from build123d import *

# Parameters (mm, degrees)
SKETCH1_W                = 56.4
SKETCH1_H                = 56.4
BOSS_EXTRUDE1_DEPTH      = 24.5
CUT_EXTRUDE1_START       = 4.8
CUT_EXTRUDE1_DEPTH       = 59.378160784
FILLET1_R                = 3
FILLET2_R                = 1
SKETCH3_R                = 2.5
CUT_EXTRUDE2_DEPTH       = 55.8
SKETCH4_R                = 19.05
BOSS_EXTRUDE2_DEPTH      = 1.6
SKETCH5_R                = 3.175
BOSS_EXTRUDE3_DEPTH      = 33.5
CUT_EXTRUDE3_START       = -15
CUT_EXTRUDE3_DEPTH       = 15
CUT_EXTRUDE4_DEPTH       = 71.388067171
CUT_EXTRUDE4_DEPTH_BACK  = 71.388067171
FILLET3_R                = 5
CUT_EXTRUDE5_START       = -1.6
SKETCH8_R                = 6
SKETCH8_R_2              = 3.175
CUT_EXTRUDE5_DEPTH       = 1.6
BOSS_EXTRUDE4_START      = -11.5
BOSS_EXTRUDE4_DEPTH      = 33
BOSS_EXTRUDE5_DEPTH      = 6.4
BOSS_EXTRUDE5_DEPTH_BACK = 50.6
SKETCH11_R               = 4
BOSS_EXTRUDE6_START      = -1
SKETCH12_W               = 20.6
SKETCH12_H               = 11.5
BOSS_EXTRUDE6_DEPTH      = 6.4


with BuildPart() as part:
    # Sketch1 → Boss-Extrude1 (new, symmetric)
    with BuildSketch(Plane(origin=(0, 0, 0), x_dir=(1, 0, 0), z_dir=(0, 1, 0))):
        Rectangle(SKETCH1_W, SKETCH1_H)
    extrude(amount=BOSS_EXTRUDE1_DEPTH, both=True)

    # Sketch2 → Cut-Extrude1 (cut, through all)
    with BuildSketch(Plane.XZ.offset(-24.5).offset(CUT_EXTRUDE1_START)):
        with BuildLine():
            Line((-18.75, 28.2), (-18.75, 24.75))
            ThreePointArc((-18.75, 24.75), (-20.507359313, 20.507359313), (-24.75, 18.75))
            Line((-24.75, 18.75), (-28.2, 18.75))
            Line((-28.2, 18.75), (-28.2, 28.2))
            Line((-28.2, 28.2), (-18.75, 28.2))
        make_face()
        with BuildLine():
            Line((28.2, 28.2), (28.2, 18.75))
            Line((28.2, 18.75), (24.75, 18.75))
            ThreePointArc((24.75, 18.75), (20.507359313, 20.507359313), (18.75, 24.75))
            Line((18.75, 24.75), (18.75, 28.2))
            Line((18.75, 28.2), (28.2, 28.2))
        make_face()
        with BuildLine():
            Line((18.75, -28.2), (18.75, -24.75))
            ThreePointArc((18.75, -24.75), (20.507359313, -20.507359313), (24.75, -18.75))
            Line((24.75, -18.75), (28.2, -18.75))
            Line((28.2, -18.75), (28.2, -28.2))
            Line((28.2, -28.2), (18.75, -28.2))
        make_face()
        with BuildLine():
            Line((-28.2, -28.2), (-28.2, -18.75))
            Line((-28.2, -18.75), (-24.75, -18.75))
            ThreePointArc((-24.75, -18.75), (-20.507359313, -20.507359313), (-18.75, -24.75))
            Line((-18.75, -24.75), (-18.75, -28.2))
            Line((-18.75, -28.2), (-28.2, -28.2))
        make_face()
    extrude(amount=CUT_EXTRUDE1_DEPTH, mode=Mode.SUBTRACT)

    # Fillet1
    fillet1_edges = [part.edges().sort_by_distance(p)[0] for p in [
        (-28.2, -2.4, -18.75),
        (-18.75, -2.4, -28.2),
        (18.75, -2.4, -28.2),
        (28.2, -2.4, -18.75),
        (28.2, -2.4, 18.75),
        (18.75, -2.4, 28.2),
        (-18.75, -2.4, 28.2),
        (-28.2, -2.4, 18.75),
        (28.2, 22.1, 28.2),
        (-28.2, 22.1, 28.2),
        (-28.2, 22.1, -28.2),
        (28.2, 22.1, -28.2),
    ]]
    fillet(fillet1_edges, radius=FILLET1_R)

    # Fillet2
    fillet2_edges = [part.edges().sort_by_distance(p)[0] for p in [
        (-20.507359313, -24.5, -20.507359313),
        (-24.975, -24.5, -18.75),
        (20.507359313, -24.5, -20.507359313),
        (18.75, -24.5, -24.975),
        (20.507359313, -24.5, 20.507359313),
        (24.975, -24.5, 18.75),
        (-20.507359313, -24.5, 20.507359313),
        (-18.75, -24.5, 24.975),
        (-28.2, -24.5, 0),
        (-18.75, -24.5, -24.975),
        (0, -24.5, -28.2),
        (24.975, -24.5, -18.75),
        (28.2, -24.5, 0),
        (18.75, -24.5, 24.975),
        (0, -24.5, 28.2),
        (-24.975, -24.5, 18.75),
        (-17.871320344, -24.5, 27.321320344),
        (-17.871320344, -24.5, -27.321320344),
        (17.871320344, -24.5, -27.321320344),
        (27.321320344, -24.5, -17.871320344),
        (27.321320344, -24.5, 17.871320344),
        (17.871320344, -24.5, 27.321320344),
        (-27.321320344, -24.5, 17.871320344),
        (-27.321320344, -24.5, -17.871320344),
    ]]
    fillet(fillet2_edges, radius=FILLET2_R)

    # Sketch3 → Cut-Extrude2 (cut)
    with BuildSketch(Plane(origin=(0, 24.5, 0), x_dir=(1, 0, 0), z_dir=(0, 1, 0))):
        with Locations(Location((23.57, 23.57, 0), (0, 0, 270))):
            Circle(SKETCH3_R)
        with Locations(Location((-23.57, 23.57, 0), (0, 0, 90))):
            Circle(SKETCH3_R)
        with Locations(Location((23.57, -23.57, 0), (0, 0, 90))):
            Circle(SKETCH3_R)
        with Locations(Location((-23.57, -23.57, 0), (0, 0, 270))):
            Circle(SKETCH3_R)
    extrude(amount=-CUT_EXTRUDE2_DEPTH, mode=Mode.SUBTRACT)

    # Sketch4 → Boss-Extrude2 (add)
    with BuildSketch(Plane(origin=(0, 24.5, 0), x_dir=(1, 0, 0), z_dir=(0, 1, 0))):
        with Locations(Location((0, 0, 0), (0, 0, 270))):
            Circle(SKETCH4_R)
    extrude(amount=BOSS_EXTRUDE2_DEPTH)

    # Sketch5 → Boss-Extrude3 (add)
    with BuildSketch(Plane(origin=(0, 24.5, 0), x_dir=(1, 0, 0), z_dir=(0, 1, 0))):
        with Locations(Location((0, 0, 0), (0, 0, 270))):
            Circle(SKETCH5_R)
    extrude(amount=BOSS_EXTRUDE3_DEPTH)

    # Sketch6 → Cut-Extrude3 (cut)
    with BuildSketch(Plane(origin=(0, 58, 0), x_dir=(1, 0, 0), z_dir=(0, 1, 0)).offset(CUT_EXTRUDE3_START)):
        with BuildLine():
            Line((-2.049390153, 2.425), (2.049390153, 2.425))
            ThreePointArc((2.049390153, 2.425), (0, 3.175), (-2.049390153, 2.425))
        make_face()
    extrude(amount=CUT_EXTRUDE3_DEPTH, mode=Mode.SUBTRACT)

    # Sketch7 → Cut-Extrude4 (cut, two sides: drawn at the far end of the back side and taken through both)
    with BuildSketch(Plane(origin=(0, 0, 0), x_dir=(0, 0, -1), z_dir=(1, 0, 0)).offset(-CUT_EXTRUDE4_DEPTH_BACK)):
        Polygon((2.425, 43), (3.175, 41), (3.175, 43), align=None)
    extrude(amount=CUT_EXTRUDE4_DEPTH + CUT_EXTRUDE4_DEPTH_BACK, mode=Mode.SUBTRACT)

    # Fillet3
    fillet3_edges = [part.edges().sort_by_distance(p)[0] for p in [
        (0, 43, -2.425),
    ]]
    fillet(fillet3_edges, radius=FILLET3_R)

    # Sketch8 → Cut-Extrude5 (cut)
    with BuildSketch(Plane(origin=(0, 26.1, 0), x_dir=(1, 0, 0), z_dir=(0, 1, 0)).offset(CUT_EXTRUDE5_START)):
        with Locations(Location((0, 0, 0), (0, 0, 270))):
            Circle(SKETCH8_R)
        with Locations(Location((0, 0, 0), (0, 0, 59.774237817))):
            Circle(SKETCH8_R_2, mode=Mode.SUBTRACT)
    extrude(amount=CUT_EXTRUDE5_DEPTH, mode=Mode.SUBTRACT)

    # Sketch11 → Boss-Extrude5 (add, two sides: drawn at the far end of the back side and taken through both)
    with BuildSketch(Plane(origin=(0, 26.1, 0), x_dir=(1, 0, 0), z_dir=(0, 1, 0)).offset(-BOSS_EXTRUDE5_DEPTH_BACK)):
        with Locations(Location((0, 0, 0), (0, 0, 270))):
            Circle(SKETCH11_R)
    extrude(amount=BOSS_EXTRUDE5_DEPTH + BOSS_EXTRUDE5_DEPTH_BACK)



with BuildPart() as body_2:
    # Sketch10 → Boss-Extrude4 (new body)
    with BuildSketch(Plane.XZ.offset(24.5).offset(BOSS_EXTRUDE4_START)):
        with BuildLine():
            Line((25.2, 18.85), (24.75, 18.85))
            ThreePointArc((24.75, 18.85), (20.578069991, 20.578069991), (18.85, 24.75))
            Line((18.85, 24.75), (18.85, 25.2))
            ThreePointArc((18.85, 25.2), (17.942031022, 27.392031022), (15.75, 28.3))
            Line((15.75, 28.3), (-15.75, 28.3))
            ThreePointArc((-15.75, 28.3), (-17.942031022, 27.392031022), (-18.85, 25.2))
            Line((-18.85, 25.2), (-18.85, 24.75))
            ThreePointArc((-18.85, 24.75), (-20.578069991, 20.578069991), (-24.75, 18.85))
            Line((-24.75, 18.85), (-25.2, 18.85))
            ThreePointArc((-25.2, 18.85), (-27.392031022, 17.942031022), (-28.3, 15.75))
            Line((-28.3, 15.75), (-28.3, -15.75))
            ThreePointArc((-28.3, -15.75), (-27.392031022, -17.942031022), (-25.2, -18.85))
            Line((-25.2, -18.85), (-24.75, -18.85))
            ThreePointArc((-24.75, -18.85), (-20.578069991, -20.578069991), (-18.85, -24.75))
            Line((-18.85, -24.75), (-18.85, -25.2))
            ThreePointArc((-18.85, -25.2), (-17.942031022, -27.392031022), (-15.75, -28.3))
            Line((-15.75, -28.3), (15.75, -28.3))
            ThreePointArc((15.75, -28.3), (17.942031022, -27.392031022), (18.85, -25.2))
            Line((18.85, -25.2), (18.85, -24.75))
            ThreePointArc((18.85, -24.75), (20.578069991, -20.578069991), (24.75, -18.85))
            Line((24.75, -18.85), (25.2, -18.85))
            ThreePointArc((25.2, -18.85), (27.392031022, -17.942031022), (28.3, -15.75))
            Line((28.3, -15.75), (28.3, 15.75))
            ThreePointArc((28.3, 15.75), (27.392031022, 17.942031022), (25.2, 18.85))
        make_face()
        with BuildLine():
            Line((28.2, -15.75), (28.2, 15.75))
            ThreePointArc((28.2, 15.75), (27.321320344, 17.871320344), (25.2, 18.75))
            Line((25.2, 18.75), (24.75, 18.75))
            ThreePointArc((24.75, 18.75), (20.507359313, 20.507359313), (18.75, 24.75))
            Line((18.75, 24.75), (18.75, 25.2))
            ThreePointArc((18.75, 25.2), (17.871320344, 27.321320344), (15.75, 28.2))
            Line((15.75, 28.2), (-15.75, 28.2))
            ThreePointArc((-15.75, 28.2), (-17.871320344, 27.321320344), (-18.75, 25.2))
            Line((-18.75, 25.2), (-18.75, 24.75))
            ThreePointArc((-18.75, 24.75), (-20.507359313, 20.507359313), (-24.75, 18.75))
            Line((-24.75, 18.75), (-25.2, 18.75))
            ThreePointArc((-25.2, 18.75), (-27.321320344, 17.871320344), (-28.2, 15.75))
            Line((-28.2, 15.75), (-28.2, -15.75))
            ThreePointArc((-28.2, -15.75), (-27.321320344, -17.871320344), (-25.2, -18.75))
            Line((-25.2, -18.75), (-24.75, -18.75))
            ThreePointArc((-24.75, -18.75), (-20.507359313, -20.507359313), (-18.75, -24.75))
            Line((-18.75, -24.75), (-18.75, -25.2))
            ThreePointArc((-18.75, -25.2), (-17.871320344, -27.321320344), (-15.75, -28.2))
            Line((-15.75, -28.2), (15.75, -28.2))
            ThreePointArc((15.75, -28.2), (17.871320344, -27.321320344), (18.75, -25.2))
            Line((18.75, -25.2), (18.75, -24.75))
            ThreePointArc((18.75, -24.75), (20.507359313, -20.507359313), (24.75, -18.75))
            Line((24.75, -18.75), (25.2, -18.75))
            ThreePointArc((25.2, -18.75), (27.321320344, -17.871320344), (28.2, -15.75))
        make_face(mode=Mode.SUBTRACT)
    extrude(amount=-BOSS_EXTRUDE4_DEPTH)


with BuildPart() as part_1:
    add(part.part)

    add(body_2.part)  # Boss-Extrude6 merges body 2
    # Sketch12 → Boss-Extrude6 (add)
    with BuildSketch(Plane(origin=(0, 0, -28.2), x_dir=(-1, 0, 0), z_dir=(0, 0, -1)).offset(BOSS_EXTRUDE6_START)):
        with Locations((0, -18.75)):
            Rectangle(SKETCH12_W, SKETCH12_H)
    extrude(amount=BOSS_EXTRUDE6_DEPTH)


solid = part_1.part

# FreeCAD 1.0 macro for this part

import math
import FreeCAD as App
import Part
import Sketcher


def edges_at(feature, points):
    """Names of the edges that pass closest to the given points."""
    edges = feature.Shape.Edges
    near = lambda p: min(range(len(edges)), key=lambda i: edges[i].distToShape(Part.Vertex(*p))[0])
    return sorted({f"Edge{near(p) + 1}" for p in points})

doc = App.newDocument("Part")
body = doc.addObject("PartDesign::Body", "Body")

sketch1 = doc.addObject("Sketcher::SketchObject", "Sketch")
body.addObject(sketch1)
sketch1.AttachmentSupport = (doc.XZ_Plane, [""])
sketch1.MapMode = "FlatFace"
sketch1.addGeometry([
    Part.LineSegment(App.Vector(-28, -28, 0), App.Vector(-28, 28, 0)),
    Part.LineSegment(App.Vector(-28, 28, 0), App.Vector(28, 28, 0)),
    Part.LineSegment(App.Vector(28, 28, 0), App.Vector(28, -28, 0)),
    Part.LineSegment(App.Vector(28, -28, 0), App.Vector(-28, -28, 0)),
], False)
sketch1.addConstraint([
    Sketcher.Constraint("Coincident", 0, 2, 1, 1),
    Sketcher.Constraint("Coincident", 1, 2, 2, 1),
    Sketcher.Constraint("Coincident", 2, 2, 3, 1),
    Sketcher.Constraint("Coincident", 3, 2, 0, 1),
    Sketcher.Constraint("Vertical", 0),
    Sketcher.Constraint("Horizontal", 1),
    Sketcher.Constraint("Vertical", 2),
    Sketcher.Constraint("Horizontal", 3),
    Sketcher.Constraint("Symmetric", 0, 2, 2, 2, -1, 1),
    Sketcher.Constraint("Equal", 3, 0),
    Sketcher.Constraint("DistanceX", 1, 1, 1, 2, 56.4),
])
pad1 = doc.addObject("PartDesign::Pad", "Pad")
body.addObject(pad1)
pad1.Profile = sketch1
pad1.Length = 49
pad1.Midplane = True

sketch2 = doc.addObject("Sketcher::SketchObject", "Sketch001")
body.addObject(sketch2)
sketch2.AttachmentSupport = (doc.XZ_Plane, [""])
sketch2.MapMode = "FlatFace"
sketch2.AttachmentOffset = App.Placement(App.Vector(0, 0, -19.7), App.Rotation())
sketch2.addGeometry([
    Part.LineSegment(App.Vector(-18.8, 24.8, 0), App.Vector(-18.8, 28.2, 0)),
    Part.LineSegment(App.Vector(-18.8, 28.2, 0), App.Vector(-28.2, 28.2, 0)),
    Part.LineSegment(App.Vector(-28.2, 28.2, 0), App.Vector(-28.2, 18.8, 0)),
    Part.LineSegment(App.Vector(-28.2, 18.8, 0), App.Vector(-24.8, 18.8, 0)),
    Part.ArcOfCircle(Part.Circle(App.Vector(-24.8, 24.8, 0), App.Vector(0, 0, 1), 6), math.radians(-90), math.radians(0)),
    Part.LineSegment(App.Vector(28.2, 18.8, 0), App.Vector(28.2, 28.2, 0)),
    Part.LineSegment(App.Vector(28.2, 28.2, 0), App.Vector(18.8, 28.2, 0)),
    Part.LineSegment(App.Vector(18.8, 28.2, 0), App.Vector(18.8, 24.8, 0)),
    Part.ArcOfCircle(Part.Circle(App.Vector(24.8, 24.8, 0), App.Vector(0, 0, 1), 6), math.radians(180), math.radians(270)),
    Part.LineSegment(App.Vector(24.8, 18.8, 0), App.Vector(28.2, 18.8, 0)),
    Part.LineSegment(App.Vector(18.8, -24.8, 0), App.Vector(18.8, -28.2, 0)),
    Part.LineSegment(App.Vector(18.8, -28.2, 0), App.Vector(28.2, -28.2, 0)),
    Part.LineSegment(App.Vector(28.2, -28.2, 0), App.Vector(28.2, -18.8, 0)),
    Part.LineSegment(App.Vector(28.2, -18.8, 0), App.Vector(24.8, -18.8, 0)),
    Part.ArcOfCircle(Part.Circle(App.Vector(24.8, -24.8, 0), App.Vector(0, 0, 1), 6), math.radians(90), math.radians(180)),
    Part.LineSegment(App.Vector(-28.2, -18.8, 0), App.Vector(-28.2, -28.2, 0)),
    Part.LineSegment(App.Vector(-28.2, -28.2, 0), App.Vector(-18.8, -28.2, 0)),
    Part.LineSegment(App.Vector(-18.8, -28.2, 0), App.Vector(-18.8, -24.8, 0)),
    Part.ArcOfCircle(Part.Circle(App.Vector(-24.8, -24.8, 0), App.Vector(0, 0, 1), 6), math.radians(0), math.radians(90)),
    Part.LineSegment(App.Vector(-24.8, -18.8, 0), App.Vector(-28.2, -18.8, 0)),
], False)
sketch2.addConstraint([
    Sketcher.Constraint("Coincident", 0, 2, 1, 1),
    Sketcher.Constraint("Coincident", 1, 2, 2, 1),
    Sketcher.Constraint("Coincident", 2, 2, 3, 1),
    Sketcher.Constraint("Tangent", 3, 2, 4, 1),
    Sketcher.Constraint("Tangent", 4, 2, 0, 1),
    Sketcher.Constraint("Coincident", 5, 2, 6, 1),
    Sketcher.Constraint("Coincident", 6, 2, 7, 1),
    Sketcher.Constraint("Tangent", 7, 2, 8, 1),
    Sketcher.Constraint("Tangent", 8, 2, 9, 1),
    Sketcher.Constraint("Coincident", 9, 2, 5, 1),
    Sketcher.Constraint("Coincident", 10, 2, 11, 1),
    Sketcher.Constraint("Coincident", 11, 2, 12, 1),
    Sketcher.Constraint("Coincident", 12, 2, 13, 1),
    Sketcher.Constraint("Tangent", 13, 2, 14, 1),
    Sketcher.Constraint("Tangent", 14, 2, 10, 1),
    Sketcher.Constraint("Coincident", 15, 2, 16, 1),
    Sketcher.Constraint("Coincident", 16, 2, 17, 1),
    Sketcher.Constraint("Tangent", 17, 2, 18, 1),
    Sketcher.Constraint("Tangent", 18, 2, 19, 1),
    Sketcher.Constraint("Coincident", 19, 2, 15, 1),
    Sketcher.Constraint("Vertical", 0),
    Sketcher.Constraint("Horizontal", 1),
    Sketcher.Constraint("Vertical", 2),
    Sketcher.Constraint("Horizontal", 3),
    Sketcher.Constraint("Vertical", 5),
    Sketcher.Constraint("Horizontal", 6),
    Sketcher.Constraint("Vertical", 7),
    Sketcher.Constraint("Horizontal", 9),
    Sketcher.Constraint("Vertical", 10),
    Sketcher.Constraint("Horizontal", 11),
    Sketcher.Constraint("Vertical", 12),
    Sketcher.Constraint("Horizontal", 13),
    Sketcher.Constraint("Vertical", 15),
    Sketcher.Constraint("Horizontal", 16),
    Sketcher.Constraint("Vertical", 17),
    Sketcher.Constraint("Horizontal", 19),
    Sketcher.Constraint("Equal", 4, 8),
    Sketcher.Constraint("Equal", 8, 14),
    Sketcher.Constraint("Equal", 14, 18),
    Sketcher.Constraint("Symmetric", 4, 3, 14, 3, -1, 1),
    Sketcher.Constraint("Symmetric", 8, 3, 18, 3, -1, 1),
    Sketcher.Constraint("Symmetric", 1, 2, 11, 2, -1, 1),
    Sketcher.Constraint("Symmetric", 5, 2, 15, 2, -1, 1),
    Sketcher.Constraint("Symmetric", 4, 3, 8, 3, -2),
    Sketcher.Constraint("Symmetric", 1, 2, 5, 2, -2),
    Sketcher.Constraint("Equal", 19, 0),
    Sketcher.Constraint("Radius", 4, 6.0),
    Sketcher.Constraint("DistanceX", 1, 2, 1, 1, 9.45),
    Sketcher.Constraint("DistanceY", -1, 1, 0, 2, 28.2),
    Sketcher.Constraint("DistanceX", 1, 2, -1, 1, 28.2),
])
pocket1 = doc.addObject("PartDesign::Pocket", "Pocket")
body.addObject(pocket1)
pocket1.Profile = sketch2
pocket1.Type = "ThroughAll"
pocket1.Reversed = True
doc.recompute()

fillet = doc.addObject("PartDesign::Fillet", "Fillet")
body.addObject(fillet)
fillet.Base = (pocket1, edges_at(pocket1, [
    (-28.2, -2.4, -18.75),
    (-18.75, -2.4, -28.2),
    (18.75, -2.4, -28.2),
    (28.2, -2.4, -18.75),
    (28.2, -2.4, 18.75),
    (18.75, -2.4, 28.2),
    (-18.75, -2.4, 28.2),
    (-28.2, -2.4, 18.75),
    (28.2, 22.1, 28.2),
    (-28.2, 22.1, 28.2),
    (-28.2, 22.1, -28.2),
    (28.2, 22.1, -28.2),
]))
fillet.Radius = 3
doc.recompute()

fillet2 = doc.addObject("PartDesign::Fillet", "Fillet001")
body.addObject(fillet2)
fillet2.Base = (fillet, edges_at(fillet, [
    (-20.507, -24.5, -20.507),
    (-24.975, -24.5, -18.75),
    (20.507, -24.5, -20.507),
    (18.75, -24.5, -24.975),
    (20.507, -24.5, 20.507),
    (24.975, -24.5, 18.75),
    (-20.507, -24.5, 20.507),
    (-18.75, -24.5, 24.975),
    (-28.2, -24.5, 0),
    (-18.75, -24.5, -24.975),
    (0, -24.5, -28.2),
    (24.975, -24.5, -18.75),
    (28.2, -24.5, 0),
    (18.75, -24.5, 24.975),
    (0, -24.5, 28.2),
    (-24.975, -24.5, 18.75),
    (-17.871, -24.5, 27.321),
    (-17.871, -24.5, -27.321),
    (17.871, -24.5, -27.321),
    (27.321, -24.5, -17.871),
    (27.321, -24.5, 17.871),
    (17.871, -24.5, 27.321),
    (-27.321, -24.5, 17.871),
    (-27.321, -24.5, -17.871),
]))
fillet2.Radius = 1

sketch3 = doc.addObject("Sketcher::SketchObject", "Sketch002")
body.addObject(sketch3)
sketch3.AttachmentSupport = (doc.XZ_Plane, [""])
sketch3.MapMode = "FlatFace"
sketch3.AttachmentOffset = App.Placement(App.Vector(0, 0, -24.5), App.Rotation())
sketch3.addGeometry([
    Part.Circle(App.Vector(23.6, -23.6, 0), App.Vector(0, 0, 1), 2.5),
    Part.Circle(App.Vector(-23.6, -23.6, 0), App.Vector(0, 0, 1), 2.5),
    Part.Circle(App.Vector(23.6, 23.6, 0), App.Vector(0, 0, 1), 2.5),
    Part.Circle(App.Vector(-23.6, 23.6, 0), App.Vector(0, 0, 1), 2.5),
], False)
sketch3.addConstraint([
    Sketcher.Constraint("Equal", 0, 1),
    Sketcher.Constraint("Equal", 1, 2),
    Sketcher.Constraint("Equal", 2, 3),
    Sketcher.Constraint("Symmetric", 1, 3, 2, 3, -1, 1),
    Sketcher.Constraint("Symmetric", 0, 3, 3, 3, -1, 1),
    Sketcher.Constraint("Symmetric", 0, 3, 1, 3, -2),
    Sketcher.Constraint("Diameter", 0, 5.0),
    Sketcher.Constraint("DistanceX", -1, 1, 0, 3, 23.57),
    Sketcher.Constraint("DistanceY", 0, 3, -1, 1, 23.57),
])
pocket2 = doc.addObject("PartDesign::Pocket", "Pocket001")
body.addObject(pocket2)
pocket2.Profile = sketch3
pocket2.Length = 55.8
pocket2.Reversed = True

sketch4 = doc.addObject("Sketcher::SketchObject", "Sketch003")
body.addObject(sketch4)
sketch4.AttachmentSupport = (doc.XZ_Plane, [""])
sketch4.MapMode = "FlatFace"
sketch4.AttachmentOffset = App.Placement(App.Vector(0, 0, -24.5), App.Rotation())
sketch4.addGeometry(Part.Circle(App.Vector(0, 0, 0), App.Vector(0, 0, 1), 19), False)
sketch4.addConstraint([
    Sketcher.Constraint("Coincident", 0, 3, -1, 1),
    Sketcher.Constraint("Diameter", 0, 38.1),
])
pad2 = doc.addObject("PartDesign::Pad", "Pad001")
body.addObject(pad2)
pad2.Profile = sketch4
pad2.Length = 1.6
pad2.Reversed = True

sketch5 = doc.addObject("Sketcher::SketchObject", "Sketch004")
body.addObject(sketch5)
sketch5.AttachmentSupport = (doc.XZ_Plane, [""])
sketch5.MapMode = "FlatFace"
sketch5.AttachmentOffset = App.Placement(App.Vector(0, 0, -24.5), App.Rotation())
sketch5.addGeometry(Part.Circle(App.Vector(0, 0, 0), App.Vector(0, 0, 1), 3.2), False)
sketch5.addConstraint([
    Sketcher.Constraint("Coincident", 0, 3, -1, 1),
    Sketcher.Constraint("Diameter", 0, 6.35),
])
pad3 = doc.addObject("PartDesign::Pad", "Pad002")
body.addObject(pad3)
pad3.Profile = sketch5
pad3.Length = 33.5
pad3.Reversed = True

sketch6 = doc.addObject("Sketcher::SketchObject", "Sketch005")
body.addObject(sketch6)
sketch6.AttachmentSupport = (doc.XZ_Plane, [""])
sketch6.MapMode = "FlatFace"
sketch6.AttachmentOffset = App.Placement(App.Vector(0, 0, -43), App.Rotation())
sketch6.addGeometry([
    Part.LineSegment(App.Vector(-2, -2.4, 0), App.Vector(2, -2.4, 0)),
    Part.ArcOfCircle(Part.Circle(App.Vector(0, 0, 0), App.Vector(0, 0, 1), 3.2), math.radians(-130), math.radians(-50)),
], False)
sketch6.addConstraint([
    Sketcher.Constraint("Coincident", 0, 1, 1, 1),
    Sketcher.Constraint("Coincident", 1, 2, 0, 2),
    Sketcher.Constraint("Horizontal", 0),
    Sketcher.Constraint("Coincident", 1, 3, -1, 1),
    Sketcher.Constraint("Radius", 1, 3.175),
    Sketcher.Constraint("DistanceY", 0, 1, -1, 1, 2.425),
])
pocket3 = doc.addObject("PartDesign::Pocket", "Pocket002")
body.addObject(pocket3)
pocket3.Profile = sketch6
pocket3.Length = 15

sketch7 = doc.addObject("Sketcher::SketchObject", "Sketch006")
body.addObject(sketch7)
sketch7.AttachmentSupport = (doc.YZ_Plane, [""])
sketch7.MapMode = "FlatFace"
sketch7.addGeometry([
    Part.LineSegment(App.Vector(43, -2.4, 0), App.Vector(41, -3.2, 0)),
    Part.LineSegment(App.Vector(41, -3.2, 0), App.Vector(43, -3.2, 0)),
    Part.LineSegment(App.Vector(43, -3.2, 0), App.Vector(43, -2.4, 0)),
], False)
sketch7.addConstraint([
    Sketcher.Constraint("Coincident", 0, 2, 1, 1),
    Sketcher.Constraint("Coincident", 1, 2, 2, 1),
    Sketcher.Constraint("Coincident", 2, 2, 0, 1),
    Sketcher.Constraint("Horizontal", 1),
    Sketcher.Constraint("Vertical", 2),
    Sketcher.Constraint("DistanceX", 1, 1, 1, 2, 2.0),
    Sketcher.Constraint("DistanceX", -1, 1, 0, 2, 41.0),
    Sketcher.Constraint("DistanceY", 2, 1, 2, 2, 0.75),
    Sketcher.Constraint("DistanceY", 0, 2, -1, 1, 3.175),
])
pocket4 = doc.addObject("PartDesign::Pocket", "Pocket003")
body.addObject(pocket4)
pocket4.Profile = sketch7
pocket4.Type = "ThroughAll"
pocket4.Midplane = True
doc.recompute()

fillet3 = doc.addObject("PartDesign::Fillet", "Fillet002")
body.addObject(fillet3)
fillet3.Base = (pocket4, edges_at(pocket4, [(0, 43, -2.425)]))
fillet3.Radius = 5

sketch8 = doc.addObject("Sketcher::SketchObject", "Sketch007")
body.addObject(sketch8)
sketch8.AttachmentSupport = (doc.XZ_Plane, [""])
sketch8.MapMode = "FlatFace"
sketch8.AttachmentOffset = App.Placement(App.Vector(0, 0, -24.5), App.Rotation())
sketch8.addGeometry([
    Part.Circle(App.Vector(0, 0, 0), App.Vector(0, 0, 1), 6),
    Part.Circle(App.Vector(0, 0, 0), App.Vector(0, 0, 1), 3.2),
], False)
sketch8.addConstraint([
    Sketcher.Constraint("Coincident", 0, 3, -1, 1),
    Sketcher.Constraint("Coincident", 1, 3, -1, 1),
    Sketcher.Constraint("Diameter", 0, 12.0),
    Sketcher.Constraint("Diameter", 1, 6.35),
])
pocket5 = doc.addObject("PartDesign::Pocket", "Pocket004")
body.addObject(pocket5)
pocket5.Profile = sketch8
pocket5.Length = 1.6

sketch9 = doc.addObject("Sketcher::SketchObject", "Sketch008")
body.addObject(sketch9)
sketch9.AttachmentSupport = (doc.XZ_Plane, [""])
sketch9.MapMode = "FlatFace"
sketch9.AttachmentOffset = App.Placement(App.Vector(0, 0, -26.1), App.Rotation())
sketch9.addGeometry(Part.Circle(App.Vector(0, 0, 0), App.Vector(0, 0, 1), 4), False)
sketch9.addConstraint([
    Sketcher.Constraint("Coincident", 0, 3, -1, 1),
    Sketcher.Constraint("Diameter", 0, 8.0),
])
pad4 = doc.addObject("PartDesign::Pad", "Pad003")
body.addObject(pad4)
pad4.Profile = sketch9
pad4.Type = "TwoLengths"
pad4.Length = 6.4
pad4.Length2 = 50.6
pad4.Reversed = True
body2 = doc.addObject("PartDesign::Body", "Body001")

sketch10 = doc.addObject("Sketcher::SketchObject", "Sketch009")
body2.addObject(sketch10)
sketch10.AttachmentSupport = (doc.getObject("XZ_Plane001"), [""])
sketch10.MapMode = "FlatFace"
sketch10.AttachmentOffset = App.Placement(App.Vector(0, 0, 13), App.Rotation())
sketch10.addGeometry([
    Part.LineSegment(App.Vector(25.2, 18.85, 0), App.Vector(24.75, 18.85, 0)),
    Part.ArcOfCircle(Part.Circle(App.Vector(24.75, 24.75, 0), App.Vector(0, 0, 1), 5.9), math.radians(180), math.radians(270)),
    Part.LineSegment(App.Vector(18.85, 24.75, 0), App.Vector(18.85, 25.2, 0)),
    Part.ArcOfCircle(Part.Circle(App.Vector(15.75, 25.2, 0), App.Vector(0, 0, 1), 3.1), math.radians(0), math.radians(90)),
    Part.LineSegment(App.Vector(15.75, 28.3, 0), App.Vector(-15.75, 28.3, 0)),
    Part.ArcOfCircle(Part.Circle(App.Vector(-15.75, 25.2, 0), App.Vector(0, 0, 1), 3.1), math.radians(90), math.radians(180)),
    Part.LineSegment(App.Vector(-18.85, 25.2, 0), App.Vector(-18.85, 24.75, 0)),
    Part.ArcOfCircle(Part.Circle(App.Vector(-24.75, 24.75, 0), App.Vector(0, 0, 1), 5.9), math.radians(-90), math.radians(0)),
    Part.LineSegment(App.Vector(-24.75, 18.85, 0), App.Vector(-25.2, 18.85, 0)),
    Part.ArcOfCircle(Part.Circle(App.Vector(-25.2, 15.75, 0), App.Vector(0, 0, 1), 3.1), math.radians(90), math.radians(180)),
    Part.LineSegment(App.Vector(-28.3, 15.75, 0), App.Vector(-28.3, -15.75, 0)),
    Part.ArcOfCircle(Part.Circle(App.Vector(-25.2, -15.75, 0), App.Vector(0, 0, 1), 3.1), math.radians(180), math.radians(270)),
    Part.LineSegment(App.Vector(-25.2, -18.85, 0), App.Vector(-24.75, -18.85, 0)),
    Part.ArcOfCircle(Part.Circle(App.Vector(-24.75, -24.75, 0), App.Vector(0, 0, 1), 5.9), math.radians(0), math.radians(90)),
    Part.LineSegment(App.Vector(-18.85, -24.75, 0), App.Vector(-18.85, -25.2, 0)),
    Part.ArcOfCircle(Part.Circle(App.Vector(-15.75, -25.2, 0), App.Vector(0, 0, 1), 3.1), math.radians(180), math.radians(270)),
    Part.LineSegment(App.Vector(-15.75, -28.3, 0), App.Vector(15.75, -28.3, 0)),
    Part.ArcOfCircle(Part.Circle(App.Vector(15.75, -25.2, 0), App.Vector(0, 0, 1), 3.1), math.radians(-90), math.radians(0)),
    Part.LineSegment(App.Vector(18.85, -25.2, 0), App.Vector(18.85, -24.75, 0)),
    Part.ArcOfCircle(Part.Circle(App.Vector(24.75, -24.75, 0), App.Vector(0, 0, 1), 5.9), math.radians(90), math.radians(180)),
    Part.LineSegment(App.Vector(24.75, -18.85, 0), App.Vector(25.2, -18.85, 0)),
    Part.ArcOfCircle(Part.Circle(App.Vector(25.2, -15.75, 0), App.Vector(0, 0, 1), 3.1), math.radians(-90), math.radians(0)),
    Part.LineSegment(App.Vector(28.3, -15.75, 0), App.Vector(28.3, 15.75, 0)),
    Part.ArcOfCircle(Part.Circle(App.Vector(25.2, 15.75, 0), App.Vector(0, 0, 1), 3.1), math.radians(0), math.radians(90)),
    Part.LineSegment(App.Vector(28.2, 15.75, 0), App.Vector(28.2, -15.75, 0)),
    Part.ArcOfCircle(Part.Circle(App.Vector(25.2, -15.75, 0), App.Vector(0, 0, 1), 3), math.radians(-90), math.radians(0)),
    Part.LineSegment(App.Vector(25.2, -18.75, 0), App.Vector(24.75, -18.75, 0)),
    Part.ArcOfCircle(Part.Circle(App.Vector(24.75, -24.75, 0), App.Vector(0, 0, 1), 6), math.radians(90), math.radians(180)),
    Part.LineSegment(App.Vector(18.75, -24.75, 0), App.Vector(18.75, -25.2, 0)),
    Part.ArcOfCircle(Part.Circle(App.Vector(15.75, -25.2, 0), App.Vector(0, 0, 1), 3), math.radians(-90), math.radians(0)),
    Part.LineSegment(App.Vector(15.75, -28.2, 0), App.Vector(-15.75, -28.2, 0)),
    Part.ArcOfCircle(Part.Circle(App.Vector(-15.75, -25.2, 0), App.Vector(0, 0, 1), 3), math.radians(180), math.radians(270)),
    Part.LineSegment(App.Vector(-18.75, -25.2, 0), App.Vector(-18.75, -24.75, 0)),
    Part.ArcOfCircle(Part.Circle(App.Vector(-24.75, -24.75, 0), App.Vector(0, 0, 1), 6), math.radians(0), math.radians(90)),
    Part.LineSegment(App.Vector(-24.75, -18.75, 0), App.Vector(-25.2, -18.75, 0)),
    Part.ArcOfCircle(Part.Circle(App.Vector(-25.2, -15.75, 0), App.Vector(0, 0, 1), 3), math.radians(180), math.radians(270)),
    Part.LineSegment(App.Vector(-28.2, -15.75, 0), App.Vector(-28.2, 15.75, 0)),
    Part.ArcOfCircle(Part.Circle(App.Vector(-25.2, 15.75, 0), App.Vector(0, 0, 1), 3), math.radians(90), math.radians(180)),
    Part.LineSegment(App.Vector(-25.2, 18.75, 0), App.Vector(-24.75, 18.75, 0)),
    Part.ArcOfCircle(Part.Circle(App.Vector(-24.75, 24.75, 0), App.Vector(0, 0, 1), 6), math.radians(-90), math.radians(0)),
    Part.LineSegment(App.Vector(-18.75, 24.75, 0), App.Vector(-18.75, 25.2, 0)),
    Part.ArcOfCircle(Part.Circle(App.Vector(-15.75, 25.2, 0), App.Vector(0, 0, 1), 3), math.radians(90), math.radians(180)),
    Part.LineSegment(App.Vector(-15.75, 28.2, 0), App.Vector(15.75, 28.2, 0)),
    Part.ArcOfCircle(Part.Circle(App.Vector(15.75, 25.2, 0), App.Vector(0, 0, 1), 3), math.radians(0), math.radians(90)),
    Part.LineSegment(App.Vector(18.75, 25.2, 0), App.Vector(18.75, 24.75, 0)),
    Part.ArcOfCircle(Part.Circle(App.Vector(24.75, 24.75, 0), App.Vector(0, 0, 1), 6), math.radians(180), math.radians(270)),
    Part.LineSegment(App.Vector(24.75, 18.75, 0), App.Vector(25.2, 18.75, 0)),
    Part.ArcOfCircle(Part.Circle(App.Vector(25.2, 15.75, 0), App.Vector(0, 0, 1), 3), math.radians(0), math.radians(90)),
], False)
sketch10.addConstraint([
    Sketcher.Constraint("Tangent", 0, 2, 1, 2),
    Sketcher.Constraint("Tangent", 1, 1, 2, 1),
    Sketcher.Constraint("Tangent", 2, 2, 3, 1),
    Sketcher.Constraint("Tangent", 3, 2, 4, 1),
    Sketcher.Constraint("Tangent", 4, 2, 5, 1),
    Sketcher.Constraint("Tangent", 5, 2, 6, 1),
    Sketcher.Constraint("Tangent", 6, 2, 7, 2),
    Sketcher.Constraint("Tangent", 7, 1, 8, 1),
    Sketcher.Constraint("Tangent", 8, 2, 9, 1),
    Sketcher.Constraint("Tangent", 9, 2, 10, 1),
    Sketcher.Constraint("Tangent", 10, 2, 11, 1),
    Sketcher.Constraint("Tangent", 11, 2, 12, 1),
    Sketcher.Constraint("Tangent", 12, 2, 13, 2),
    Sketcher.Constraint("Tangent", 13, 1, 14, 1),
    Sketcher.Constraint("Tangent", 14, 2, 15, 1),
    Sketcher.Constraint("Tangent", 15, 2, 16, 1),
    Sketcher.Constraint("Tangent", 16, 2, 17, 1),
    Sketcher.Constraint("Tangent", 17, 2, 18, 1),
    Sketcher.Constraint("Tangent", 18, 2, 19, 2),
    Sketcher.Constraint("Tangent", 19, 1, 20, 1),
    Sketcher.Constraint("Tangent", 20, 2, 21, 1),
    Sketcher.Constraint("Tangent", 21, 2, 22, 1),
    Sketcher.Constraint("Tangent", 22, 2, 23, 1),
    Sketcher.Constraint("Tangent", 23, 2, 0, 1),
    Sketcher.Constraint("Tangent", 24, 2, 25, 2),
    Sketcher.Constraint("Tangent", 25, 1, 26, 1),
    Sketcher.Constraint("Tangent", 26, 2, 27, 1),
    Sketcher.Constraint("Tangent", 27, 2, 28, 1),
    Sketcher.Constraint("Tangent", 28, 2, 29, 2),
    Sketcher.Constraint("Tangent", 29, 1, 30, 1),
    Sketcher.Constraint("Tangent", 30, 2, 31, 2),
    Sketcher.Constraint("Tangent", 31, 1, 32, 1),
    Sketcher.Constraint("Tangent", 32, 2, 33, 1),
    Sketcher.Constraint("Tangent", 33, 2, 34, 1),
    Sketcher.Constraint("Tangent", 34, 2, 35, 2),
    Sketcher.Constraint("Tangent", 35, 1, 36, 1),
    Sketcher.Constraint("Tangent", 36, 2, 37, 2),
    Sketcher.Constraint("Tangent", 37, 1, 38, 1),
    Sketcher.Constraint("Tangent", 38, 2, 39, 1),
    Sketcher.Constraint("Tangent", 39, 2, 40, 1),
    Sketcher.Constraint("Tangent", 40, 2, 41, 2),
    Sketcher.Constraint("Tangent", 41, 1, 42, 1),
    Sketcher.Constraint("Tangent", 42, 2, 43, 2),
    Sketcher.Constraint("Tangent", 43, 1, 44, 1),
    Sketcher.Constraint("Tangent", 44, 2, 45, 1),
    Sketcher.Constraint("Tangent", 45, 2, 46, 1),
    Sketcher.Constraint("Tangent", 46, 2, 47, 2),
    Sketcher.Constraint("Tangent", 47, 1, 24, 1),
    Sketcher.Constraint("Horizontal", 0),
    Sketcher.Constraint("Vertical", 2),
    Sketcher.Constraint("Horizontal", 4),
    Sketcher.Constraint("Vertical", 6),
    Sketcher.Constraint("Horizontal", 8),
    Sketcher.Constraint("Vertical", 10),
    Sketcher.Constraint("Horizontal", 12),
    Sketcher.Constraint("Vertical", 14),
    Sketcher.Constraint("Horizontal", 16),
    Sketcher.Constraint("Vertical", 18),
    Sketcher.Constraint("Horizontal", 20),
    Sketcher.Constraint("Vertical", 22),
    Sketcher.Constraint("Vertical", 24),
    Sketcher.Constraint("Horizontal", 26),
    Sketcher.Constraint("Vertical", 28),
    Sketcher.Constraint("Horizontal", 30),
    Sketcher.Constraint("Vertical", 32),
    Sketcher.Constraint("Horizontal", 34),
    Sketcher.Constraint("Vertical", 36),
    Sketcher.Constraint("Horizontal", 38),
    Sketcher.Constraint("Vertical", 40),
    Sketcher.Constraint("Horizontal", 42),
    Sketcher.Constraint("Vertical", 44),
    Sketcher.Constraint("Horizontal", 46),
    Sketcher.Constraint("Coincident", 25, 3, 21, 3),
    Sketcher.Constraint("Coincident", 27, 3, 19, 3),
    Sketcher.Constraint("Coincident", 29, 3, 17, 3),
    Sketcher.Constraint("Coincident", 31, 3, 15, 3),
    Sketcher.Constraint("Coincident", 33, 3, 13, 3),
    Sketcher.Constraint("Coincident", 35, 3, 11, 3),
    Sketcher.Constraint("Coincident", 37, 3, 9, 3),
    Sketcher.Constraint("Coincident", 39, 3, 7, 3),
    Sketcher.Constraint("Coincident", 41, 3, 5, 3),
    Sketcher.Constraint("Coincident", 43, 3, 3, 3),
    Sketcher.Constraint("Coincident", 45, 3, 1, 3),
    Sketcher.Constraint("Equal", 3, 5),
    Sketcher.Constraint("Equal", 1, 7),
    Sketcher.Constraint("Equal", 5, 9),
    Sketcher.Constraint("Equal", 9, 11),
    Sketcher.Constraint("Equal", 7, 13),
    Sketcher.Constraint("Equal", 11, 15),
    Sketcher.Constraint("Equal", 15, 17),
    Sketcher.Constraint("Equal", 13, 19),
    Sketcher.Constraint("Equal", 17, 21),
    Sketcher.Constraint("Equal", 21, 23),
    Sketcher.Constraint("Equal", 43, 47),
    Sketcher.Constraint("Symmetric", 1, 3, 13, 3, -1, 1),
    Sketcher.Constraint("Symmetric", 5, 3, 17, 3, -1, 1),
    Sketcher.Constraint("Symmetric", 9, 3, 21, 3, -1, 1),
    Sketcher.Constraint("Symmetric", 1, 3, 7, 3, -2),
    Sketcher.Constraint("Equal", 46, 2),
    Sketcher.Constraint("Equal", 42, 10),
    Sketcher.Constraint("Radius", 25, 3.0),
    Sketcher.Constraint("Radius", 27, 6.0),
    Sketcher.Constraint("Radius", 1, 5.9),
    Sketcher.Constraint("DistanceX", 4, 2, 4, 1, 31.5),
    Sketcher.Constraint("DistanceX", 0, 2, 0, 1, 0.45),
])
pad5 = doc.addObject("PartDesign::Pad", "Pad004")
body2.addObject(pad5)
pad5.Profile = sketch10
pad5.Length = 33
pad5.Reversed = True
doc.recompute()

boolean = doc.addObject("PartDesign::Boolean", "Boolean")
body.addObject(boolean)
boolean.Type = "Fuse"
boolean.addObjects([body2])

sketch11 = doc.addObject("Sketcher::SketchObject", "Sketch010")
body.addObject(sketch11)
sketch11.AttachmentSupport = (doc.XY_Plane, [""])
sketch11.MapMode = "FlatFace"
sketch11.AttachmentOffset = App.Placement(App.Vector(0, 0, -27.2), App.Rotation())
sketch11.addGeometry([
    Part.LineSegment(App.Vector(10, -13, 0), App.Vector(10, -24, 0)),
    Part.LineSegment(App.Vector(10, -24, 0), App.Vector(-10, -24, 0)),
    Part.LineSegment(App.Vector(-10, -24, 0), App.Vector(-10, -13, 0)),
    Part.LineSegment(App.Vector(-10, -13, 0), App.Vector(10, -13, 0)),
], False)
sketch11.addConstraint([
    Sketcher.Constraint("Coincident", 0, 2, 1, 1),
    Sketcher.Constraint("Coincident", 1, 2, 2, 1),
    Sketcher.Constraint("Coincident", 2, 2, 3, 1),
    Sketcher.Constraint("Coincident", 3, 2, 0, 1),
    Sketcher.Constraint("Vertical", 0),
    Sketcher.Constraint("Horizontal", 1),
    Sketcher.Constraint("Vertical", 2),
    Sketcher.Constraint("Horizontal", 3),
    Sketcher.Constraint("DistanceX", 1, 2, 1, 1, 20.6),
    Sketcher.Constraint("DistanceY", 0, 2, 0, 1, 11.5),
    Sketcher.Constraint("DistanceY", 2, 2, -1, 1, 13.0),
    Sketcher.Constraint("DistanceX", -1, 1, 0, 2, 10.3),
])
pad6 = doc.addObject("PartDesign::Pad", "Pad005")
body.addObject(pad6)
pad6.Profile = sketch11
pad6.Length = 6.4
pad6.Reversed = True

doc.recompute()
